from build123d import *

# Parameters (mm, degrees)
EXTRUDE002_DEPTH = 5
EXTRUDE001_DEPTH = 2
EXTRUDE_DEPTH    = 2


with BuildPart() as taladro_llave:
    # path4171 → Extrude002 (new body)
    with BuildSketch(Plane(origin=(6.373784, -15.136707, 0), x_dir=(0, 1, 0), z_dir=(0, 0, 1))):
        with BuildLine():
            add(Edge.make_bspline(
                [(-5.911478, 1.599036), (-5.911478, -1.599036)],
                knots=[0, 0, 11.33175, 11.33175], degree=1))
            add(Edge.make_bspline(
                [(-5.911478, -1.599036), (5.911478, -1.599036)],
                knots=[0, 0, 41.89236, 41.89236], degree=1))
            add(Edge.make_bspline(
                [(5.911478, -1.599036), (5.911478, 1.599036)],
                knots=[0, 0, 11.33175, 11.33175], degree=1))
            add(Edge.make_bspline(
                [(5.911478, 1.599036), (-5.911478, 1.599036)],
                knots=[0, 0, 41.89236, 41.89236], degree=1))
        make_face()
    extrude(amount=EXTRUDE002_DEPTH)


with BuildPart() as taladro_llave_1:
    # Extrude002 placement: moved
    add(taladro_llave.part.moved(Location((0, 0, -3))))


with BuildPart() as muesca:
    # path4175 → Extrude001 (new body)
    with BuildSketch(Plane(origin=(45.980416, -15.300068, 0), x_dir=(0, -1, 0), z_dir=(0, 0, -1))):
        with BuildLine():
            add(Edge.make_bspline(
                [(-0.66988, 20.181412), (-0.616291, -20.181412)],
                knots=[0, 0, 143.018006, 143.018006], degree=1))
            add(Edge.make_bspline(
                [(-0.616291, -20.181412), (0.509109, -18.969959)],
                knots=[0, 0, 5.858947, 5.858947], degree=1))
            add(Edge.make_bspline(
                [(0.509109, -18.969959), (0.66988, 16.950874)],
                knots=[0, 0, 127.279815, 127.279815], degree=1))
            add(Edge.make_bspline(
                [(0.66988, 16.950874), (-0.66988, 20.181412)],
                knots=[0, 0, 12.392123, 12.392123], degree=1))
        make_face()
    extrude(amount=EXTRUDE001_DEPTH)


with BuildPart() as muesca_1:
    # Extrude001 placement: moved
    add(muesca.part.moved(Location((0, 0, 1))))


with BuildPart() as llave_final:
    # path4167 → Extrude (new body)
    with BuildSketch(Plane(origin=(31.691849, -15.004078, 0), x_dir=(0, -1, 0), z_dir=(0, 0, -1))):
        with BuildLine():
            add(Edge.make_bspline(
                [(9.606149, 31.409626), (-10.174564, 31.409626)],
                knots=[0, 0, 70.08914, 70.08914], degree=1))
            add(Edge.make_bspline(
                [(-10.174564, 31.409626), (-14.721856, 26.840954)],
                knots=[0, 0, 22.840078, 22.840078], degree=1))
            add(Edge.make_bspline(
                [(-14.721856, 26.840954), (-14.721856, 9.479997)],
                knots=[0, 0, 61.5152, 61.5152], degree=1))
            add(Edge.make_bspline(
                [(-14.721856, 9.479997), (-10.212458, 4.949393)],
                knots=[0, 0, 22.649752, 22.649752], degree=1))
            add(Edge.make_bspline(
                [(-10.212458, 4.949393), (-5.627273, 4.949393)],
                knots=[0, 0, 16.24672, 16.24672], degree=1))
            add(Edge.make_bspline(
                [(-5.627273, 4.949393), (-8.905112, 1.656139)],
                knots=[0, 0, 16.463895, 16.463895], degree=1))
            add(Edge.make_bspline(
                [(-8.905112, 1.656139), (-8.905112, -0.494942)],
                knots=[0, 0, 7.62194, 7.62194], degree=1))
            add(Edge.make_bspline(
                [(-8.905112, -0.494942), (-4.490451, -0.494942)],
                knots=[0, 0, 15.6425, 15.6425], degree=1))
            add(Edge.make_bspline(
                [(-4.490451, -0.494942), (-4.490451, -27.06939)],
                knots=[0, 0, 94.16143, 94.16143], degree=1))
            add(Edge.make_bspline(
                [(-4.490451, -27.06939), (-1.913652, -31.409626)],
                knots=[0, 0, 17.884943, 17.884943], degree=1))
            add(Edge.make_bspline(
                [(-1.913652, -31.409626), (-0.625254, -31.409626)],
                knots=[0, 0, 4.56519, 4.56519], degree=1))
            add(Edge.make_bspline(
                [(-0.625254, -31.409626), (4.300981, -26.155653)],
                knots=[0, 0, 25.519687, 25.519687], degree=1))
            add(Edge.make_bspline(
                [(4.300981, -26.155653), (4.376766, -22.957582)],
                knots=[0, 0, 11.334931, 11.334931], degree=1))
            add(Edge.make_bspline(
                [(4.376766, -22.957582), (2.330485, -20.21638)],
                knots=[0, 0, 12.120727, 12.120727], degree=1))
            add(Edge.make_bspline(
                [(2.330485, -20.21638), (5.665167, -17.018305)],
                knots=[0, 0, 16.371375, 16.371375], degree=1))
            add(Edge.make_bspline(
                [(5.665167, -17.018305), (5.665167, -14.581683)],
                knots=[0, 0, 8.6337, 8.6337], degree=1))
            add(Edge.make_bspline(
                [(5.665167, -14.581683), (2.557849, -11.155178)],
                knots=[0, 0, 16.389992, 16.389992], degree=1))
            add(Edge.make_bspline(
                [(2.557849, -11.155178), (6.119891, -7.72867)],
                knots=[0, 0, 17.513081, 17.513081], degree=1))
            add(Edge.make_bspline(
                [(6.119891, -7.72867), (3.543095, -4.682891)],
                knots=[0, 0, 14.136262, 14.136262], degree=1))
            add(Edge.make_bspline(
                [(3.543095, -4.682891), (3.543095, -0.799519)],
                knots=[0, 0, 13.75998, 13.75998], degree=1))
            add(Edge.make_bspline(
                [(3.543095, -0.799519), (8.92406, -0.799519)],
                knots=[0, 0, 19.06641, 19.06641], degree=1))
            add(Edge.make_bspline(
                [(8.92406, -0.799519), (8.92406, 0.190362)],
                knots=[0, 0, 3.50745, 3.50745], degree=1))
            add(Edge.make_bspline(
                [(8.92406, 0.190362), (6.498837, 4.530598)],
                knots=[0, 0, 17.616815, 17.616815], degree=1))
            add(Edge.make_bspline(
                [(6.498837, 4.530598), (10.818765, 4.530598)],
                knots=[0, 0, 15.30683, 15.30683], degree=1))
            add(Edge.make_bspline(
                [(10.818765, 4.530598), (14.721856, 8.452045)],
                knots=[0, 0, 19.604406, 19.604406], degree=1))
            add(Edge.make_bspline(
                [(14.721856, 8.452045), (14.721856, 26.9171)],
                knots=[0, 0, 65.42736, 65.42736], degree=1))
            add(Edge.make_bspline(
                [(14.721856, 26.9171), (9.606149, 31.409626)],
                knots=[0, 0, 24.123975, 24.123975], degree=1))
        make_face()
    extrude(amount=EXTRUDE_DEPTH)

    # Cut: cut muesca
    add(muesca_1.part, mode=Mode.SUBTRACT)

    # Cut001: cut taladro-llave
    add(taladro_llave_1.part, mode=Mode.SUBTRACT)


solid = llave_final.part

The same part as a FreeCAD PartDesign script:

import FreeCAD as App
import Part
import Sketcher
from FreeCAD import Vector

doc = App.newDocument("Part")
body = doc.addObject("PartDesign::Body", "Body")

# Sketch on XY plane
sketch1 = body.newObject("Sketcher::SketchObject", "Sketch")
sketch1.AttachmentSupport = (doc.getObject("XY_Plane"), [""])
sketch1.MapMode = "FlatFace"
sketch1.addGeometry([
    Part.BSplineCurve([Vector(4.774748, -21.048185, 0), Vector(7.97282, -21.048185, 0)], [2, 2], [0, 11.33175], False, 1, [1, 1], False),
    Part.BSplineCurve([Vector(7.97282, -21.048185, 0), Vector(7.97282, -9.225229, 0)], [2, 2], [0, 41.89236], False, 1, [1, 1], False),
    Part.BSplineCurve([Vector(7.97282, -9.225229, 0), Vector(4.774748, -9.225229, 0)], [2, 2], [0, 11.33175], False, 1, [1, 1], False),
    Part.BSplineCurve([Vector(4.774748, -9.225229, 0), Vector(4.774748, -21.048185, 0)], [2, 2], [0, 41.89236], False, 1, [1, 1], False),
], False)
sketch1.addConstraint([
    Sketcher.Constraint("Block", 0),
    Sketcher.Constraint("Block", 1),
    Sketcher.Constraint("Block", 2),
    Sketcher.Constraint("Block", 3),
])
pad1 = body.newObject("PartDesign::Pad", "Pad")
pad1.Profile = sketch1
pad1.Length = 5
body2 = doc.addObject("PartDesign::Body", "Body001")
doc.recompute()

body.Placement = App.Placement(Vector(0, 0, -3), App.Rotation(Vector(0, 0, 1), 0))
boolean = body2.newObject("PartDesign::Boolean", "Boolean")
boolean.Type = "Fuse"
boolean.addObjects([body])
body3 = doc.addObject("PartDesign::Body", "Body002")

# Sketch on XY plane
sketch2 = body3.newObject("Sketcher::SketchObject", "Sketch001")
sketch2.AttachmentSupport = (doc.getObject("XY_Plane002"), [""])
sketch2.MapMode = "FlatFace"
sketch2.addGeometry([
    Part.BSplineCurve([Vector(25.799004, -14.630188, 0), Vector(66.161828, -14.683777, 0)], [2, 2], [0, 143.018006], False, 1, [1, 1], False),
    Part.BSplineCurve([Vector(66.161828, -14.683777, 0), Vector(64.950375, -15.809177, 0)], [2, 2], [0, 5.858947], False, 1, [1, 1], False),
    Part.BSplineCurve([Vector(64.950375, -15.809177, 0), Vector(29.029542, -15.969948, 0)], [2, 2], [0, 127.279815], False, 1, [1, 1], False),
    Part.BSplineCurve([Vector(29.029542, -15.969948, 0), Vector(25.799004, -14.630188, 0)], [2, 2], [0, 12.392123], False, 1, [1, 1], False),
], False)
sketch2.addConstraint([
    Sketcher.Constraint("Block", 0),
    Sketcher.Constraint("Block", 1),
    Sketcher.Constraint("Block", 2),
    Sketcher.Constraint("Block", 3),
])
pad2 = body3.newObject("PartDesign::Pad", "Pad001")
pad2.Profile = sketch2
pad2.Length = 2
pad2.Reversed = True
body4 = doc.addObject("PartDesign::Body", "Body003")
doc.recompute()

body3.Placement = App.Placement(Vector(0, 0, 1), App.Rotation(Vector(0, 0, 1), 0))
boolean2 = body4.newObject("PartDesign::Boolean", "Boolean001")
boolean2.Type = "Fuse"
boolean2.addObjects([body3])
body5 = doc.addObject("PartDesign::Body", "Body004")

# Sketch on XY plane
sketch3 = body5.newObject("Sketcher::SketchObject", "Sketch002")
sketch3.AttachmentSupport = (doc.getObject("XY_Plane004"), [""])
sketch3.MapMode = "FlatFace"
sketch3.addGeometry([
    Part.BSplineCurve([Vector(0.282223, -24.610227, 0), Vector(0.282223, -4.829514, 0)], [2, 2], [0, 70.08914], False, 1, [1, 1], False),  # 0
    Part.BSplineCurve([Vector(0.282223, -4.829514, 0), Vector(4.850895, -0.282222, 0)], [2, 2], [0, 22.840078], False, 1, [1, 1], False),  # 1
    Part.BSplineCurve([Vector(4.850895, -0.282222, 0), Vector(22.211852, -0.282222, 0)], [2, 2], [0, 61.5152], False, 1, [1, 1], False),  # 2
    Part.BSplineCurve([Vector(22.211852, -0.282222, 0), Vector(26.742456, -4.79162, 0)], [2, 2], [0, 22.649752], False, 1, [1, 1], False),  # 3
    Part.BSplineCurve([Vector(26.742456, -4.79162, 0), Vector(26.742456, -9.376805, 0)], [2, 2], [0, 16.24672], False, 1, [1, 1], False),  # 4
    Part.BSplineCurve([Vector(26.742456, -9.376805, 0), Vector(30.03571, -6.098966, 0)], [2, 2], [0, 16.463895], False, 1, [1, 1], False),  # 5
    Part.BSplineCurve([Vector(30.03571, -6.098966, 0), Vector(32.186791, -6.098966, 0)], [2, 2], [0, 7.62194], False, 1, [1, 1], False),  # 6
    Part.BSplineCurve([Vector(32.186791, -6.098966, 0), Vector(32.186791, -10.513627, 0)], [2, 2], [0, 15.6425], False, 1, [1, 1], False),  # 7
    Part.BSplineCurve([Vector(32.186791, -10.513627, 0), Vector(58.761239, -10.513627, 0)], [2, 2], [0, 94.16143], False, 1, [1, 1], False),  # 8
    Part.BSplineCurve([Vector(58.761239, -10.513627, 0), Vector(63.101475, -13.090426, 0)], [2, 2], [0, 17.884943], False, 1, [1, 1], False),  # 9
    Part.BSplineCurve([Vector(63.101475, -13.090426, 0), Vector(63.101475, -14.378824, 0)], [2, 2], [0, 4.56519], False, 1, [1, 1], False),  # 10
    Part.BSplineCurve([Vector(63.101475, -14.378824, 0), Vector(57.847502, -19.305059, 0)], [2, 2], [0, 25.519687], False, 1, [1, 1], False),  # 11
    Part.BSplineCurve([Vector(57.847502, -19.305059, 0), Vector(54.649431, -19.380844, 0)], [2, 2], [0, 11.334931], False, 1, [1, 1], False),  # 12
    Part.BSplineCurve([Vector(54.649431, -19.380844, 0), Vector(51.908229, -17.334563, 0)], [2, 2], [0, 12.120727], False, 1, [1, 1], False),  # 13
    Part.BSplineCurve([Vector(51.908229, -17.334563, 0), Vector(48.710154, -20.669245, 0)], [2, 2], [0, 16.371375], False, 1, [1, 1], False),  # 14
    Part.BSplineCurve([Vector(48.710154, -20.669245, 0), Vector(46.273532, -20.669245, 0)], [2, 2], [0, 8.6337], False, 1, [1, 1], False),  # 15
    Part.BSplineCurve([Vector(46.273532, -20.669245, 0), Vector(42.847027, -17.561927, 0)], [2, 2], [0, 16.389992], False, 1, [1, 1], False),  # 16
    Part.BSplineCurve([Vector(42.847027, -17.561927, 0), Vector(39.420519, -21.123969, 0)], [2, 2], [0, 17.513081], False, 1, [1, 1], False),  # 17
    Part.BSplineCurve([Vector(39.420519, -21.123969, 0), Vector(36.37474, -18.547173, 0)], [2, 2], [0, 14.136262], False, 1, [1, 1], False),  # 18
    Part.BSplineCurve([Vector(36.37474, -18.547173, 0), Vector(32.491368, -18.547173, 0)], [2, 2], [0, 13.75998], False, 1, [1, 1], False),  # 19
    Part.BSplineCurve([Vector(32.491368, -18.547173, 0), Vector(32.491368, -23.928138, 0)], [2, 2], [0, 19.06641], False, 1, [1, 1], False),  # 20
    Part.BSplineCurve([Vector(32.491368, -23.928138, 0), Vector(31.501487, -23.928138, 0)], [2, 2], [0, 3.50745], False, 1, [1, 1], False),  # 21
    Part.BSplineCurve([Vector(31.501487, -23.928138, 0), Vector(27.161251, -21.502915, 0)], [2, 2], [0, 17.616815], False, 1, [1, 1], False),  # 22
    Part.BSplineCurve([Vector(27.161251, -21.502915, 0), Vector(27.161251, -25.822843, 0)], [2, 2], [0, 15.30683], False, 1, [1, 1], False),  # 23
    Part.BSplineCurve([Vector(27.161251, -25.822843, 0), Vector(23.239804, -29.725934, 0)], [2, 2], [0, 19.604406], False, 1, [1, 1], False),  # 24
    Part.BSplineCurve([Vector(23.239804, -29.725934, 0), Vector(4.774749, -29.725934, 0)], [2, 2], [0, 65.42736], False, 1, [1, 1], False),  # 25
    Part.BSplineCurve([Vector(4.774749, -29.725934, 0), Vector(0.282223, -24.610227, 0)], [2, 2], [0, 24.123975], False, 1, [1, 1], False),  # 26
], False)
sketch3.addConstraint([
    Sketcher.Constraint("Block", 0),
    Sketcher.Constraint("Block", 1),
    Sketcher.Constraint("Block", 2),
    Sketcher.Constraint("Block", 3),
    Sketcher.Constraint("Block", 4),
    Sketcher.Constraint("Block", 5),
    Sketcher.Constraint("Block", 6),
    Sketcher.Constraint("Block", 7),
    Sketcher.Constraint("Block", 8),
    Sketcher.Constraint("Block", 9),
    Sketcher.Constraint("Block", 10),
    Sketcher.Constraint("Block", 11),
    Sketcher.Constraint("Block", 12),
    Sketcher.Constraint("Block", 13),
    Sketcher.Constraint("Block", 14),
    Sketcher.Constraint("Block", 15),
    Sketcher.Constraint("Block", 16),
    Sketcher.Constraint("Block", 17),
    Sketcher.Constraint("Block", 18),
    Sketcher.Constraint("Block", 19),
    Sketcher.Constraint("Block", 20),
    Sketcher.Constraint("Block", 21),
    Sketcher.Constraint("Block", 22),
    Sketcher.Constraint("Block", 23),
    Sketcher.Constraint("Block", 24),
    Sketcher.Constraint("Block", 25),
    Sketcher.Constraint("Block", 26),
])
pad3 = body5.newObject("PartDesign::Pad", "Pad002")
pad3.Profile = sketch3
pad3.Length = 2
pad3.Reversed = True
doc.recompute()

boolean3 = body5.newObject("PartDesign::Boolean", "Boolean002")
boolean3.Type = "Cut"
boolean3.addObjects([body4])
doc.recompute()

boolean4 = body5.newObject("PartDesign::Boolean", "Boolean003")
boolean4.Type = "Cut"
boolean4.addObjects([body2])

doc.recompute()
